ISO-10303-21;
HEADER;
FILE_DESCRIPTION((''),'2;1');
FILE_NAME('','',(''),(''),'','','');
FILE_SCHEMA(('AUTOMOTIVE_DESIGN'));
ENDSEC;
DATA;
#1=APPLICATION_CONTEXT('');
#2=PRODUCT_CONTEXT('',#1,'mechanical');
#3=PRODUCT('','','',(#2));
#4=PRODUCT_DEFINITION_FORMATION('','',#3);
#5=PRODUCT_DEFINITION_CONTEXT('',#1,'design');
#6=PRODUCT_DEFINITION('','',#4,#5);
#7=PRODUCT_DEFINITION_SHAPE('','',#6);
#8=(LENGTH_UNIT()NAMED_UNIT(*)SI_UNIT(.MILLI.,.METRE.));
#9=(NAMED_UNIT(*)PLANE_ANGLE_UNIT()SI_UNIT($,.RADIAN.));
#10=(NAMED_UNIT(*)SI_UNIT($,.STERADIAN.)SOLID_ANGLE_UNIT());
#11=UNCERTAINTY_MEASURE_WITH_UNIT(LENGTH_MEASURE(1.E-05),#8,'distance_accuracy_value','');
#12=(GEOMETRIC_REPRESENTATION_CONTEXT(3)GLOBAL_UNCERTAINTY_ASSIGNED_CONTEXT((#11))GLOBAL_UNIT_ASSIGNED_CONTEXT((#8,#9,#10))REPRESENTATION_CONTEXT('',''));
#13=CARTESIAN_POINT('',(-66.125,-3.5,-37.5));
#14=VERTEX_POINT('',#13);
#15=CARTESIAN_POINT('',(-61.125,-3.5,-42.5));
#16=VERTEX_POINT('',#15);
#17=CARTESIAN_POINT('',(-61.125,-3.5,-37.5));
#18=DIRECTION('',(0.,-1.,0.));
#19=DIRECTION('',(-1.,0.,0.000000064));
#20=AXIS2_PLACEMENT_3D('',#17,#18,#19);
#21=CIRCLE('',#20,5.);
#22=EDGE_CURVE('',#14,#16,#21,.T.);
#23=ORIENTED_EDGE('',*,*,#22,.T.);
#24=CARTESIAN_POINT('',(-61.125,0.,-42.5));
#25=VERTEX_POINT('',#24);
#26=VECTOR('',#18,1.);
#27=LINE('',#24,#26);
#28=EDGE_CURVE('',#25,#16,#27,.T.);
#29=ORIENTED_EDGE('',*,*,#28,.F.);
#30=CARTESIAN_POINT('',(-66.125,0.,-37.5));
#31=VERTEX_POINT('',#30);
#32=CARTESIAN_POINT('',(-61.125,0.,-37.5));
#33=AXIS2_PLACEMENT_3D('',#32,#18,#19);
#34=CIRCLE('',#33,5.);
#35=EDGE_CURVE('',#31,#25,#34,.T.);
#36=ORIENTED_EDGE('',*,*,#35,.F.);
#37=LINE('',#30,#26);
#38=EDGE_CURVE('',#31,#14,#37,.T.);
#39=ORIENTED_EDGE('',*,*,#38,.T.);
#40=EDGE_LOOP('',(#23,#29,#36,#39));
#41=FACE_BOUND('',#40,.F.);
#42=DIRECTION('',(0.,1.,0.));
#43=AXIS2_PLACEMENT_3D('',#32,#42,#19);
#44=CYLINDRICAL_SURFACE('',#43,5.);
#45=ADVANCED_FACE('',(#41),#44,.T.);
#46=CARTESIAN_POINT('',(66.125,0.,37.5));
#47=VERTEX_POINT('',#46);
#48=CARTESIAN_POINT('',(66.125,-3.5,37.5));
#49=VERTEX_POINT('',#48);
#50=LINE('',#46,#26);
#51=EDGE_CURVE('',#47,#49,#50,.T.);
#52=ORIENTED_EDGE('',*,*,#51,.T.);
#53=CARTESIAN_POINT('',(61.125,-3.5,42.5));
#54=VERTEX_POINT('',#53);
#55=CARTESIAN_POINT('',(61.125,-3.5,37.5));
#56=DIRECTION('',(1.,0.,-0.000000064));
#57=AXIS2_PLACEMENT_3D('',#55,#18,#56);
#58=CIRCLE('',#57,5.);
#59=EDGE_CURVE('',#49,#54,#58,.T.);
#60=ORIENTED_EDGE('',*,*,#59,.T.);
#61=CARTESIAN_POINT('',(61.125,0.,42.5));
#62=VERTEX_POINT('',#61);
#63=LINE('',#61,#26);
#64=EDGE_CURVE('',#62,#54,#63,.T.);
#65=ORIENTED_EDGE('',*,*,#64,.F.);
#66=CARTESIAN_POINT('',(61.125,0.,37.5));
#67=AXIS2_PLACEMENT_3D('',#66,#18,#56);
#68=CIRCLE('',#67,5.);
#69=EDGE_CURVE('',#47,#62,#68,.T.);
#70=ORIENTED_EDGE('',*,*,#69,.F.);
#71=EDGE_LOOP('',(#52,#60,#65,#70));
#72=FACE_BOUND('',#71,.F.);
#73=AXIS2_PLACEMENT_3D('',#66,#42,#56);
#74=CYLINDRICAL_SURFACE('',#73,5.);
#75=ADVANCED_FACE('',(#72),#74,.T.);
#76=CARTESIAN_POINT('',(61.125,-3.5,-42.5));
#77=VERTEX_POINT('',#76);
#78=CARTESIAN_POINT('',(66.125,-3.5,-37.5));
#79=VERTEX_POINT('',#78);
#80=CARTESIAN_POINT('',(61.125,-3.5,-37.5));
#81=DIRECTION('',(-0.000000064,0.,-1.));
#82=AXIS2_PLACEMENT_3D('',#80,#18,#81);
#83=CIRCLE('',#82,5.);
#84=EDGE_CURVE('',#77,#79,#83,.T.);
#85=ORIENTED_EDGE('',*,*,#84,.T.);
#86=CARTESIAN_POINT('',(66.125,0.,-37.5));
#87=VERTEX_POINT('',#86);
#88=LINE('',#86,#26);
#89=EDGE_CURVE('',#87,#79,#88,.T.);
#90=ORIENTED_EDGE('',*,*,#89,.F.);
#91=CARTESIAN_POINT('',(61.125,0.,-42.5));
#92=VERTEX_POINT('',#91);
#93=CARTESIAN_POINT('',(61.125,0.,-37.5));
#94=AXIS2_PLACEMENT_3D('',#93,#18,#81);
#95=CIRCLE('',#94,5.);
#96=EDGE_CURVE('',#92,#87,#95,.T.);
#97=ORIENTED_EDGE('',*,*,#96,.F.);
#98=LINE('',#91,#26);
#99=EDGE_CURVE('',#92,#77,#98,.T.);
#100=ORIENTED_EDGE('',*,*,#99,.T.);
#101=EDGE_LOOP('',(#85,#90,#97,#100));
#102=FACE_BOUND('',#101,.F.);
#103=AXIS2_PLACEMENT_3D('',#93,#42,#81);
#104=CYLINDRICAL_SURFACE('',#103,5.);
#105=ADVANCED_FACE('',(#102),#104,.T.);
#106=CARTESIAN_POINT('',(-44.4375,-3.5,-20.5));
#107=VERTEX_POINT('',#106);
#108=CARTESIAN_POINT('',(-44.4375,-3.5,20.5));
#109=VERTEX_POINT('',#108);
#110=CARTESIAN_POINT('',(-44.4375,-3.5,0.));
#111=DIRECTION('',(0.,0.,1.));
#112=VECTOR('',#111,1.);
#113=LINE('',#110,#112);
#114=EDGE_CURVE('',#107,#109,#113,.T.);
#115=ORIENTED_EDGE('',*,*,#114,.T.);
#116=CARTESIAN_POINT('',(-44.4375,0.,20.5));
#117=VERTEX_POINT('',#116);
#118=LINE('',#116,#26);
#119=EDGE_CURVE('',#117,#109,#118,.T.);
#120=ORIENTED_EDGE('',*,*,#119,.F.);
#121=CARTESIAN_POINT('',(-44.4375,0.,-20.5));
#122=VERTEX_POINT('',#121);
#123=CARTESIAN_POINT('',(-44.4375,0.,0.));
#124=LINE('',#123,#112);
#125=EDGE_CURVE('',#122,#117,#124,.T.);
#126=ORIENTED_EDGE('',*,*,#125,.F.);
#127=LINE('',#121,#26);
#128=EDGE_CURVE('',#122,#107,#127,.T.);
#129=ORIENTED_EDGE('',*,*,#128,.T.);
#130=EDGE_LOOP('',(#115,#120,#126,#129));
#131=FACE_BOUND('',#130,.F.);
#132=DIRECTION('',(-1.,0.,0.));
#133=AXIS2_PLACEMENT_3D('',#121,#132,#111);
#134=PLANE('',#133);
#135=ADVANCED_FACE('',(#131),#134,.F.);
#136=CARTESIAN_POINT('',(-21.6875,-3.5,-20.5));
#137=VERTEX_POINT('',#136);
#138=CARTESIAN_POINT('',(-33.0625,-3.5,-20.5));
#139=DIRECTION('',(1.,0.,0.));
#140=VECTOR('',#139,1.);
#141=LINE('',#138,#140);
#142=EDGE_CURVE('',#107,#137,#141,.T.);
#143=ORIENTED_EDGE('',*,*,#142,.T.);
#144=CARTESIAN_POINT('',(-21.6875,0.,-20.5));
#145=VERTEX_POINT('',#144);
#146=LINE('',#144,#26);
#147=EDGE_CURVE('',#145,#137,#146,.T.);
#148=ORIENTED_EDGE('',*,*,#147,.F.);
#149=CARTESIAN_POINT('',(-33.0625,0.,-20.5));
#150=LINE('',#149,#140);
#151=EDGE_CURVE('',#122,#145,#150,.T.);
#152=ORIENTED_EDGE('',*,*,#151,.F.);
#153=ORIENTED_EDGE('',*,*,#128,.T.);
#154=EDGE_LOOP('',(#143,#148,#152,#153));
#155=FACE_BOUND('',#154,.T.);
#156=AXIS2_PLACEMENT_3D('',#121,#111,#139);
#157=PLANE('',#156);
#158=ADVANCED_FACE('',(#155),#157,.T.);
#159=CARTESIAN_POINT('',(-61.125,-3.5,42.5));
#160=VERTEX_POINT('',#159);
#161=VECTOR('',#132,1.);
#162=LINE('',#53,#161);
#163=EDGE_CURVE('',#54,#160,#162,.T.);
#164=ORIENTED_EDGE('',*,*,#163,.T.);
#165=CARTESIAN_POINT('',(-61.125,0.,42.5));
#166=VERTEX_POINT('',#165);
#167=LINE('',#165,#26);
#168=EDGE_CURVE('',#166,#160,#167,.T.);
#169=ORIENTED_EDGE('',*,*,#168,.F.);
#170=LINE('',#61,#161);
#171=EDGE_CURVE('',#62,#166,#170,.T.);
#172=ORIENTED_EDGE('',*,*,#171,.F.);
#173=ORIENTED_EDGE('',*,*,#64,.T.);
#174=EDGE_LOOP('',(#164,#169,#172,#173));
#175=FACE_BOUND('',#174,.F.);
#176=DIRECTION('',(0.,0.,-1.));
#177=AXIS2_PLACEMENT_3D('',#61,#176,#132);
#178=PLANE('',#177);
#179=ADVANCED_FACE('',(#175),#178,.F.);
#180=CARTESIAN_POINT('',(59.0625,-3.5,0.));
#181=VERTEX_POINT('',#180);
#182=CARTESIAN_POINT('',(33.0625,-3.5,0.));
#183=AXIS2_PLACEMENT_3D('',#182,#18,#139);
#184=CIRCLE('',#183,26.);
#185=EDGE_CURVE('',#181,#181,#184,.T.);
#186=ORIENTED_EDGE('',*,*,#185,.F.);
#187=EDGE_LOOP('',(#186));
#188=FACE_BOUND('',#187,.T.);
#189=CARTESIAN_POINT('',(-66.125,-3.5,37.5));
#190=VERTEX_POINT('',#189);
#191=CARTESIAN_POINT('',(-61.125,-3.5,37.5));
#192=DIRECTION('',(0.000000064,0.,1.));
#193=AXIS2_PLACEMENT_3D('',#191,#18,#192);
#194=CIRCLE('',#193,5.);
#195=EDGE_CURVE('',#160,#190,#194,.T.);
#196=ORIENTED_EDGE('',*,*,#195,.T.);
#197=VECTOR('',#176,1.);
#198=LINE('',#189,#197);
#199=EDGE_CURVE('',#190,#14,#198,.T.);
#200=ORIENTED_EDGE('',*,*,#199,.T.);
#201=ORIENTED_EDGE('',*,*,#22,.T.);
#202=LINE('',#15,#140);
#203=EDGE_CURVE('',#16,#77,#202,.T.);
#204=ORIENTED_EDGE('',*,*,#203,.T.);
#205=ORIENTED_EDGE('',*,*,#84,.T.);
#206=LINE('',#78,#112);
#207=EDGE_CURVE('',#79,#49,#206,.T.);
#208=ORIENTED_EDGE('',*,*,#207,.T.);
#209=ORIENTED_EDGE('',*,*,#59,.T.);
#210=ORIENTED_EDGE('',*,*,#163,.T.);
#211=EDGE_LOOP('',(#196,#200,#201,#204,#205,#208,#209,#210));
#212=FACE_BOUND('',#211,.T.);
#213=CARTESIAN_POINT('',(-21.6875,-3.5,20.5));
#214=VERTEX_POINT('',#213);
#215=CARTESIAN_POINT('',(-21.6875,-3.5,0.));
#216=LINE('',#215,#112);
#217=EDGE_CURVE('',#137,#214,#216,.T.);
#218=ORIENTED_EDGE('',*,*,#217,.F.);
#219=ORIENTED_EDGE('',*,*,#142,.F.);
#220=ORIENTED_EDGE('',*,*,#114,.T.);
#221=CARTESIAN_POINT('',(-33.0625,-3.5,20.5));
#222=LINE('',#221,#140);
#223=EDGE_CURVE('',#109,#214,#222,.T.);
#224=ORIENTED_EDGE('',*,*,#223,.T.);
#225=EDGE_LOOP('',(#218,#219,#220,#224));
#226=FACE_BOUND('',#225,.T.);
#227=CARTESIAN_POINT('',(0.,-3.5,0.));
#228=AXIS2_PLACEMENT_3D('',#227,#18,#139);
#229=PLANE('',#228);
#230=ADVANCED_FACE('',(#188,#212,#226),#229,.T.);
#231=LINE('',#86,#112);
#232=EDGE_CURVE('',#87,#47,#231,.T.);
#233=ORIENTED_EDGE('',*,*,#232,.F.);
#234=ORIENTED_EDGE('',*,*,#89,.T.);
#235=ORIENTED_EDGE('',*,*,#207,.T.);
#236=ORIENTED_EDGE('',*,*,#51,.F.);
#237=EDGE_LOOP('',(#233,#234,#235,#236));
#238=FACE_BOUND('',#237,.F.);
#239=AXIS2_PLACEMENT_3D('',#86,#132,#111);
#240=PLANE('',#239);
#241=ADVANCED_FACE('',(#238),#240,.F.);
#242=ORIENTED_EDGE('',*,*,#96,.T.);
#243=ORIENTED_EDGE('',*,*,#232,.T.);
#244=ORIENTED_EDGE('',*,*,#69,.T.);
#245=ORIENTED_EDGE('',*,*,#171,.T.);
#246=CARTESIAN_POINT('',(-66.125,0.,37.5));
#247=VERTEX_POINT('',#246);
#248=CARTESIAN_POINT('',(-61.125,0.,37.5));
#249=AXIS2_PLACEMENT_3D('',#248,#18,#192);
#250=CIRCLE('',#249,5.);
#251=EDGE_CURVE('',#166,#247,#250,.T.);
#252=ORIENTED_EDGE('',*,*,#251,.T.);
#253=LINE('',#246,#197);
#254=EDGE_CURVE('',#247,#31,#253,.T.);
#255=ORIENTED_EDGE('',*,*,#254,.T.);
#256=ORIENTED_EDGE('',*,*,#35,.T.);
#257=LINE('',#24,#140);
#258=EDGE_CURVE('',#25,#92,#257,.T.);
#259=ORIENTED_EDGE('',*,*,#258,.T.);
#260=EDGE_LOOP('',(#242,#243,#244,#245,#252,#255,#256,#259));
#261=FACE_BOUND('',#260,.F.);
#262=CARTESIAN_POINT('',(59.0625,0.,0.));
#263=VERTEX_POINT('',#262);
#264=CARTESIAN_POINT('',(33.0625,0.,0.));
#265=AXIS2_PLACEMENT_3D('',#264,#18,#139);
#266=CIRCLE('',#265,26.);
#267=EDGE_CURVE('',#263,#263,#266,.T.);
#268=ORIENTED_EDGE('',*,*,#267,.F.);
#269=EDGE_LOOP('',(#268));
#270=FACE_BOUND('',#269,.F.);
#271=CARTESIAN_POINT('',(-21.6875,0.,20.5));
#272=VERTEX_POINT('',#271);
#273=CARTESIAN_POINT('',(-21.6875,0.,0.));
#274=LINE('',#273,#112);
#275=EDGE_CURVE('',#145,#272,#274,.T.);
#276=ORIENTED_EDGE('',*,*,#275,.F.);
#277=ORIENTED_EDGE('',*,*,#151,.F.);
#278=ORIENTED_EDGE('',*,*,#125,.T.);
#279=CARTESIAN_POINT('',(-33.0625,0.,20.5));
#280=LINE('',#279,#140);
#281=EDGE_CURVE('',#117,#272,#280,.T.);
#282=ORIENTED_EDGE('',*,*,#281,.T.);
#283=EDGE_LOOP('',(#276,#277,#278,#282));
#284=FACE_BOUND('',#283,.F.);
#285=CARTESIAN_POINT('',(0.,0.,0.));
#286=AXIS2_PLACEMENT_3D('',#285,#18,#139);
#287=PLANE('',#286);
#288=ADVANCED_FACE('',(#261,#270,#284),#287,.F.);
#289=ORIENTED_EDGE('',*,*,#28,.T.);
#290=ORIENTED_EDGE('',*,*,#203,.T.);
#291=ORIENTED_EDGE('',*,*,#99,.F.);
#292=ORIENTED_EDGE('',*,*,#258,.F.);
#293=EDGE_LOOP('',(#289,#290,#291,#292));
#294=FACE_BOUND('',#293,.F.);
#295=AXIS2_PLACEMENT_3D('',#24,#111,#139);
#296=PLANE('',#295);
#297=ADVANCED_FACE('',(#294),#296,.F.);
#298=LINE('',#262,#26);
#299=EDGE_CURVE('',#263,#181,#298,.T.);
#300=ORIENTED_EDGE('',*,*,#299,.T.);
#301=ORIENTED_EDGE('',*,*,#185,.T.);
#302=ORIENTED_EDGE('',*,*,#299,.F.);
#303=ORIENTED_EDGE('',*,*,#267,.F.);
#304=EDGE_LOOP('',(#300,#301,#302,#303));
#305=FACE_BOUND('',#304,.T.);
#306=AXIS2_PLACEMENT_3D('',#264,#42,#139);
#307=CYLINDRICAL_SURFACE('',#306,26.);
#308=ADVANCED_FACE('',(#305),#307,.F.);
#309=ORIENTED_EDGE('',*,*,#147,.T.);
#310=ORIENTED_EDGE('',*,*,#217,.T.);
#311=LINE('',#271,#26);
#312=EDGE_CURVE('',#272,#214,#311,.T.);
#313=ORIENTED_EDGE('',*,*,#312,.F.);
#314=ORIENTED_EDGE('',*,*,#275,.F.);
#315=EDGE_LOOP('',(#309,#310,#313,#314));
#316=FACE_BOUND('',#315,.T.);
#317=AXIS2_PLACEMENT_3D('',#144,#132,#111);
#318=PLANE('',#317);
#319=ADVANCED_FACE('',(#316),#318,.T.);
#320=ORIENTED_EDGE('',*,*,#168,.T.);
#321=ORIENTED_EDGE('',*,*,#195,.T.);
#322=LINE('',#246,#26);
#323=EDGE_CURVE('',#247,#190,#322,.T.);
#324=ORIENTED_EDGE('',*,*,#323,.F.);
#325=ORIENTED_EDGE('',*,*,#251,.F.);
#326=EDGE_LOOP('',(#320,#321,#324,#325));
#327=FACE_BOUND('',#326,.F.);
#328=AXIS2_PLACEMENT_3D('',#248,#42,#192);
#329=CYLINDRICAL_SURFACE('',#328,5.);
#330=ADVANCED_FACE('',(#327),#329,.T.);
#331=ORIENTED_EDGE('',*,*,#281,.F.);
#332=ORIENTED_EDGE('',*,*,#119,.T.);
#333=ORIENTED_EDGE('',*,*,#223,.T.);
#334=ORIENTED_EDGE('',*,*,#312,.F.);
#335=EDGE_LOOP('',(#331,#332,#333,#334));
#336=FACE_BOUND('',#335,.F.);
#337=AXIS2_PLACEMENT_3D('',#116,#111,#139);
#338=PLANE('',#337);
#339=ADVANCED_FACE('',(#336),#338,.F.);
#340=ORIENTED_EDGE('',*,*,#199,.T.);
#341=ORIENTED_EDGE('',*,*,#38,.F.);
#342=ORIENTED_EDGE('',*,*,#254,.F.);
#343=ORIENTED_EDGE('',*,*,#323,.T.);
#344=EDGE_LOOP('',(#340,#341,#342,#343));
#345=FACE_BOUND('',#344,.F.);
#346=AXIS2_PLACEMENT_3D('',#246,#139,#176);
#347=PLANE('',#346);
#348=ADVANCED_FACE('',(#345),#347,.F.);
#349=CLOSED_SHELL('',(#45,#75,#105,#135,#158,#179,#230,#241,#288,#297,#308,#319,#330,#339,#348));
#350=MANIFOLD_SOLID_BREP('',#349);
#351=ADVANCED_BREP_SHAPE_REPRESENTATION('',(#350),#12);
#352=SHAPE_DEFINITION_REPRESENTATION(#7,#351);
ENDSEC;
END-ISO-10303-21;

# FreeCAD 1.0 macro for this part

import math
import FreeCAD as App
import Part
import Sketcher

V = App.Vector
Q = App.Units.Quantity


def add_polygon(sketch, points):
    """Adds a closed chain of lines whose ends are joined by coincident constraints."""
    first, n = sketch.GeometryCount, len(points)
    for a, b in zip(points, points[1:] + points[:1]):
        sketch.addGeometry(Part.LineSegment(App.Vector(*a, 0), App.Vector(*b, 0)), False)
    for i in range(n):
        sketch.addConstraint(Sketcher.Constraint("Coincident", first + i, 2, first + (i + 1) % n, 1))

doc = App.newDocument("Part")
params = doc.addObject("Spreadsheet::Sheet", "Params")
for row, (alias, value) in enumerate([
    ("sketch1_diameter", "52 mm"),
    ("sketch1_radius", "5 mm"),
    ("sketch1_height", "75 mm"),
    ("sketch1_height2", "41 mm"),
    ("sketch1_width", "122.25 mm"),
    ("pad1_length", "3.5 mm"),
], start=1):
    params.set(f"A{row}", alias)
    params.set(f"B{row}", "=" + value)
    params.setAlias(f"B{row}", alias)

body = doc.addObject("PartDesign::Body", "Body")

# Sketch on XZ plane
sketch1 = body.newObject("Sketcher::SketchObject", "Sketch")
sketch1.AttachmentSupport = (doc.getObject("XZ_Plane"), [""])
sketch1.MapMode = "FlatFace"
sketch1.addGeometry(Part.LineSegment(V(-61.1, -42.5, 0), V(61.1, -42.5, 0)), False)  # 0
sketch1.addGeometry(Part.ArcOfCircle(Part.Circle(V(61.1, -37.5, 0), V(0, 0, 1), 5), math.radians(-90), math.radians(0)), False)  # 1
sketch1.addGeometry(Part.LineSegment(V(66.1, -37.5, 0), V(66.1, 37.5, 0)), False)  # 2
sketch1.addGeometry(Part.ArcOfCircle(Part.Circle(V(61.1, 37.5, 0), V(0, 0, 1), 5), math.radians(0), math.radians(90)), False)  # 3
sketch1.addGeometry(Part.LineSegment(V(61.1, 42.5, 0), V(-61.1, 42.5, 0)), False)  # 4
sketch1.addGeometry(Part.ArcOfCircle(Part.Circle(V(-61.1, 37.5, 0), V(0, 0, 1), 5), math.radians(90), math.radians(180)), False)  # 5
sketch1.addGeometry(Part.LineSegment(V(-66.1, 37.5, 0), V(-66.1, -37.5, 0)), False)  # 6
sketch1.addGeometry(Part.ArcOfCircle(Part.Circle(V(-61.1, -37.5, 0), V(0, 0, 1), 5), math.radians(180), math.radians(270)), False)  # 7
add_polygon(sketch1, [(-21.7, -20.5), (-44.4, -20.5), (-44.4, 20.5), (-21.7, 20.5)])  # lines 8-11
sketch1.addGeometry(Part.Circle(V(33.1, 0, 0), V(0, 0, 1), 26), False)  # 12
sketch1.addConstraint([
    Sketcher.Constraint("Tangent", 0, 2, 1, 1),
    Sketcher.Constraint("Tangent", 1, 2, 2, 1),
    Sketcher.Constraint("Tangent", 2, 2, 3, 1),
    Sketcher.Constraint("Tangent", 3, 2, 4, 1),
    Sketcher.Constraint("Tangent", 4, 2, 5, 1),
    Sketcher.Constraint("Tangent", 5, 2, 6, 1),
    Sketcher.Constraint("Tangent", 6, 2, 7, 1),
    Sketcher.Constraint("Tangent", 7, 2, 0, 1),
    Sketcher.Constraint("Horizontal", 0),
    Sketcher.Constraint("Vertical", 2),
    Sketcher.Constraint("Horizontal", 4),
    Sketcher.Constraint("Vertical", 6),
    Sketcher.Constraint("Horizontal", 8),
    Sketcher.Constraint("Vertical", 9),
    Sketcher.Constraint("Horizontal", 10),
    Sketcher.Constraint("Vertical", 11),
    Sketcher.Constraint("Equal", 1, 3),
    Sketcher.Constraint("Equal", 3, 5),
    Sketcher.Constraint("Equal", 5, 7),
    Sketcher.Constraint("Symmetric", 1, 3, 5, 3, -1, 1),
    Sketcher.Constraint("PointOnObject", 12, 3, -1),
    Sketcher.Constraint("Diameter", 12, Q("52 mm")),
    Sketcher.Constraint("Radius", 1, Q("5 mm")),
    Sketcher.Constraint("DistanceY", 2, 1, 2, 2, Q("75 mm")),
    Sketcher.Constraint("DistanceY", 9, 1, 9, 2, Q("41 mm")),
    Sketcher.Constraint("DistanceY", 7, 3, 8, 2, Q("17 mm")),
    Sketcher.Constraint("DistanceX", 0, 1, 0, 2, Q("122.25 mm")),
    Sketcher.Constraint("DistanceX", 8, 2, 8, 1, Q("22.75 mm")),
    Sketcher.Constraint("DistanceX", -1, 1, 12, 3, Q("33.0625 mm")),
    Sketcher.Constraint("DistanceX", 8, 2, -1, 1, Q("44.4375 mm")),
])
sketch1.setExpression("Constraints[25]", "Params.sketch1_diameter")
sketch1.setExpression("Constraints[26]", "Params.sketch1_radius")
sketch1.setExpression("Constraints[27]", "Params.sketch1_height")
sketch1.setExpression("Constraints[28]", "Params.sketch1_height2")
sketch1.setExpression("Constraints[30]", "Params.sketch1_width")
pad1 = body.newObject("PartDesign::Pad", "Pad")
pad1.Profile = sketch1
pad1.setExpression("Length", "Params.pad1_length")

doc.recompute()
